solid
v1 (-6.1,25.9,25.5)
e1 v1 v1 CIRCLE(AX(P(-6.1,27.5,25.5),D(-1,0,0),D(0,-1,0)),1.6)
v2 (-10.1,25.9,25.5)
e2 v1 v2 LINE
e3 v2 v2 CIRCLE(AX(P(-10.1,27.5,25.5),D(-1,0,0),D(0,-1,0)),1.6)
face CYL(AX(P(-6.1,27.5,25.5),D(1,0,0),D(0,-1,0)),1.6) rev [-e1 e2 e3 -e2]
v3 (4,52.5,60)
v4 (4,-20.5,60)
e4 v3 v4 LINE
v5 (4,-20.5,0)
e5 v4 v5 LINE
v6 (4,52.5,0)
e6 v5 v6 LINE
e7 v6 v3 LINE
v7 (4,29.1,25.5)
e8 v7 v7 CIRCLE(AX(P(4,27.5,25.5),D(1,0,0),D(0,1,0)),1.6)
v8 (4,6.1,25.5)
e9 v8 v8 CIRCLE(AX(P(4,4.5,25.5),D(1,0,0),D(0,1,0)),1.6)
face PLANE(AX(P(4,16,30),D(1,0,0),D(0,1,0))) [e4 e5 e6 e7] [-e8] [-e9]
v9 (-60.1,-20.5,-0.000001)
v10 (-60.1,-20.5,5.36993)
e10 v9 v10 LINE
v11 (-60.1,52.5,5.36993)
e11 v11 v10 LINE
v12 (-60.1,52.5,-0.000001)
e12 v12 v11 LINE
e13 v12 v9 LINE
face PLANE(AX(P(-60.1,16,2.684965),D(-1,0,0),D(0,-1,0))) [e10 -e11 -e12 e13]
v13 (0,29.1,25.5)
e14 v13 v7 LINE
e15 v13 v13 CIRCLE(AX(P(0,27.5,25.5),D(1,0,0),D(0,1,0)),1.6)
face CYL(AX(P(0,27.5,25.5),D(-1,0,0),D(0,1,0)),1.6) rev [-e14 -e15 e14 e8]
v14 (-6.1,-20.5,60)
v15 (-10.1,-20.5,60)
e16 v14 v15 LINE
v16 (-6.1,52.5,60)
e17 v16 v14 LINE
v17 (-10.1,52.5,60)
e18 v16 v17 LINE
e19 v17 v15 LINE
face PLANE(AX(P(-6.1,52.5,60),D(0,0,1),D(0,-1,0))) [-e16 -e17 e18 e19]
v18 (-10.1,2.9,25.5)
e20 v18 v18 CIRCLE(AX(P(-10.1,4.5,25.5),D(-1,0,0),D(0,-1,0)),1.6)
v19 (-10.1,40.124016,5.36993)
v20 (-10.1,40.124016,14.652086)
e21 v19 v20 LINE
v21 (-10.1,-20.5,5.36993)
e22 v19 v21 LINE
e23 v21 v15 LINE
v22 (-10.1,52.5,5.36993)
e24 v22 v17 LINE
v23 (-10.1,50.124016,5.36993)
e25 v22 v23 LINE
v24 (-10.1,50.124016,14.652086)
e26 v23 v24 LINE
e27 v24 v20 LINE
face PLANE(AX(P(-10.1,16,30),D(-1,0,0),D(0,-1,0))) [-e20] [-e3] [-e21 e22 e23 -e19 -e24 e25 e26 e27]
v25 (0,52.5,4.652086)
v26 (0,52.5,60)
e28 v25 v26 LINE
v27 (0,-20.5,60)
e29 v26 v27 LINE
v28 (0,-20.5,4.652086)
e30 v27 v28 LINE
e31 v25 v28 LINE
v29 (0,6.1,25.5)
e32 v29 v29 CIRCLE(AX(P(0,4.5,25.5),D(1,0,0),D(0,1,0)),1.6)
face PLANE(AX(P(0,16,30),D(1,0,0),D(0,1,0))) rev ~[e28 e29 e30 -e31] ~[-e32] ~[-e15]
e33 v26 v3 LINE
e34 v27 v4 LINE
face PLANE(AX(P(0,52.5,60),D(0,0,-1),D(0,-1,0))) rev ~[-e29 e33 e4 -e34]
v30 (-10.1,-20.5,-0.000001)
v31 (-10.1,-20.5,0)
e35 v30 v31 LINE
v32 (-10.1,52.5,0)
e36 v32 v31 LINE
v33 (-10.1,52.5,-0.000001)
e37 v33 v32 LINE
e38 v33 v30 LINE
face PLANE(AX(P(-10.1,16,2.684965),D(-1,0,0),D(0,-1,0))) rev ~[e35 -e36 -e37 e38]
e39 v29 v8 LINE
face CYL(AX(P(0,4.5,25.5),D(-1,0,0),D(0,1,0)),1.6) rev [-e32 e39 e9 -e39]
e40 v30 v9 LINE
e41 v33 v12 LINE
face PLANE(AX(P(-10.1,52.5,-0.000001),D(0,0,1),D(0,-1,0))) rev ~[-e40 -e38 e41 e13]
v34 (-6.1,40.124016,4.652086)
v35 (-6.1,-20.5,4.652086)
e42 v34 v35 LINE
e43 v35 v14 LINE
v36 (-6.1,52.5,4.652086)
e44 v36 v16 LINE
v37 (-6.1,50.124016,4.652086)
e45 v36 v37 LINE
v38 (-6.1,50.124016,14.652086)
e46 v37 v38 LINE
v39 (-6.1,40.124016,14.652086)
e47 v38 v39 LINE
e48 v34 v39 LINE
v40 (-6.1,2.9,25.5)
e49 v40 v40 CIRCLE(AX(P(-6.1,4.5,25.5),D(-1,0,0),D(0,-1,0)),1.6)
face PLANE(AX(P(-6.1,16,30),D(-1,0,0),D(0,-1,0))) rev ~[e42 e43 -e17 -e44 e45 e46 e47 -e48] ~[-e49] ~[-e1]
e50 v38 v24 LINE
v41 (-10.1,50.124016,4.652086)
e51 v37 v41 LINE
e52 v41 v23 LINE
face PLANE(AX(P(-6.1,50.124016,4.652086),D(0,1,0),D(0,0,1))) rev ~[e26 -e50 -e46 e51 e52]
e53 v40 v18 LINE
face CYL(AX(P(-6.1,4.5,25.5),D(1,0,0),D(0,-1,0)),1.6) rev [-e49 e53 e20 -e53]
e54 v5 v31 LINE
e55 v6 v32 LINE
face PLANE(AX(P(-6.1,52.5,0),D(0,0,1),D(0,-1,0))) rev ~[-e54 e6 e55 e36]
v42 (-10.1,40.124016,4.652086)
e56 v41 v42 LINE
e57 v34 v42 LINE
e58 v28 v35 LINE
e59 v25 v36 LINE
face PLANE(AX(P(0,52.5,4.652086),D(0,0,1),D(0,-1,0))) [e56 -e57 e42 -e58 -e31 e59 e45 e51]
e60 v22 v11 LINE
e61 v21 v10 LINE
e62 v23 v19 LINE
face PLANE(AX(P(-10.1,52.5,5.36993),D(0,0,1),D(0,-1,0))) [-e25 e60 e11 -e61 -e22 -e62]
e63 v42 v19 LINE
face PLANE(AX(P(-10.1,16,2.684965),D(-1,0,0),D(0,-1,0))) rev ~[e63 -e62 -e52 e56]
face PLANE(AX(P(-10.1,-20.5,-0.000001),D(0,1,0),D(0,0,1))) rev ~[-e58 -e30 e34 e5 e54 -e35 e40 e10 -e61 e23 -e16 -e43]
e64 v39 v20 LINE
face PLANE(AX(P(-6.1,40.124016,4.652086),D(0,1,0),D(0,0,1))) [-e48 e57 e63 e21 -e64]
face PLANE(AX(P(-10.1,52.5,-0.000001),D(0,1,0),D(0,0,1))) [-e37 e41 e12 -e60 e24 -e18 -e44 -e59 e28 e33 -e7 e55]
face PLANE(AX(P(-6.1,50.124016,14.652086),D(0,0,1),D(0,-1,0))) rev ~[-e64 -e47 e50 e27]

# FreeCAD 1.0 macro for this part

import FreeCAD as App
import Part
import Sketcher


def add_polygon(sketch, points):
    """Adds a closed chain of lines whose ends are joined by coincident constraints."""
    first, n = sketch.GeometryCount, len(points)
    for a, b in zip(points, points[1:] + points[:1]):
        sketch.addGeometry(Part.LineSegment(App.Vector(*a, 0), App.Vector(*b, 0)), False)
    for i in range(n):
        sketch.addConstraint(Sketcher.Constraint("Coincident", first + i, 2, first + (i + 1) % n, 1))

doc = App.newDocument("Part")
params = doc.addObject("Spreadsheet::Sheet", "Params")
for row, (alias, value) in enumerate([
    ("sketch1_diameter", "3.2 mm"),
    ("sketch1_width", "73 mm"),
    ("sketch1_height", "60 mm"),
    ("pad1_length", "4 mm"),
    ("sketch2_width", "73 mm"),
    ("pad2_length", "6.1 mm"),
    ("sketch3_diameter", "3.2 mm"),
    ("sketch3_width", "73 mm"),
    ("sketch3_width2", "10 mm"),
    ("sketch3_height", "60 mm"),
    ("pad3_length", "4 mm"),
    ("sketch4_width", "73 mm"),
    ("pad4_length", "50 mm"),
], start=1):
    params.set(f"A{row}", alias)
    params.set(f"B{row}", "=" + value)
    params.setAlias(f"B{row}", alias)

body = doc.addObject("PartDesign::Body", "Body")

# Sketch on YZ plane
sketch1 = body.newObject("Sketcher::SketchObject", "Sketch")
sketch1.AttachmentSupport = (doc.getObject("YZ_Plane"), [""])
sketch1.MapMode = "FlatFace"
add_polygon(sketch1, [(-20.5, 0), (52.5, 0), (52.5, 60), (-20.5, 60)])  # lines 0-3
sketch1.addGeometry(Part.Circle(App.Vector(4.5, 25.5, 0), App.Vector(0, 0, 1), 1.6), False)  # 4
sketch1.addGeometry(Part.Circle(App.Vector(27.5, 25.5, 0), App.Vector(0, 0, 1), 1.6), False)  # 5
sketch1.addConstraint([
    Sketcher.Constraint("Horizontal", 0),
    Sketcher.Constraint("Vertical", 1),
    Sketcher.Constraint("Horizontal", 2),
    Sketcher.Constraint("Vertical", 3),
    Sketcher.Constraint("Equal", 4, 5),
    Sketcher.Constraint("PointOnObject", 0, 2, -1),
    Sketcher.Constraint("Horizontal", 4, 3, 5, 3),
    Sketcher.Constraint("Diameter", 4, 3.2),
    Sketcher.Constraint("DistanceX", 0, 1, 0, 2, 73.0),
    Sketcher.Constraint("DistanceY", 1, 1, 1, 2, 60.0),
    Sketcher.Constraint("DistanceX", 4, 3, 5, 3, 23.0),
    Sketcher.Constraint("DistanceX", 5, 3, 0, 2, 25.0),
    Sketcher.Constraint("DistanceX", -1, 1, 4, 3, 4.5),
    Sketcher.Constraint("DistanceY", -1, 1, 4, 3, 25.5),
])
sketch1.setExpression("Constraints[11]", "Params.sketch1_diameter")
sketch1.setExpression("Constraints[12]", "Params.sketch1_width")
sketch1.setExpression("Constraints[13]", "Params.sketch1_height")
pad1 = body.newObject("PartDesign::Pad", "Pad")
pad1.Profile = sketch1
pad1.setExpression("Length", "Params.pad1_length")

# Sketch on YZ plane
sketch2 = body.newObject("Sketcher::SketchObject", "Sketch001")
sketch2.AttachmentSupport = (doc.getObject("YZ_Plane"), [""])
sketch2.MapMode = "FlatFace"
add_polygon(sketch2, [(52.5, 4.7), (52.5, 0), (-20.5, 0), (-20.5, 4.7)])  # lines 0-3
sketch2.addConstraint([
    Sketcher.Constraint("Vertical", 0),
    Sketcher.Constraint("Horizontal", 1),
    Sketcher.Constraint("Vertical", 2),
    Sketcher.Constraint("Horizontal", 3),
    Sketcher.Constraint("PointOnObject", 0, 2, -1),
    Sketcher.Constraint("DistanceX", 1, 2, 1, 1, 73.0),
    Sketcher.Constraint("DistanceX", -1, 1, 0, 2, 52.5),
    Sketcher.Constraint("DistanceY", 0, 2, 0, 1, 4.652086),
])
sketch2.setExpression("Constraints[9]", "Params.sketch2_width")
pad2 = body.newObject("PartDesign::Pad", "Pad001")
pad2.Profile = sketch2
pad2.setExpression("Length", "Params.pad2_length")
pad2.Reversed = True

# Sketch on YZ plane
sketch3 = body.newObject("Sketcher::SketchObject", "Sketch002")
sketch3.AttachmentSupport = (doc.getObject("YZ_Plane"), [""])
sketch3.MapMode = "FlatFace"
sketch3.AttachmentOffset = App.Placement(App.Vector(0, 0, -6.1), App.Rotation())
add_polygon(sketch3, [(52.5, 60), (52.5, 0), (-20.5, 0), (-20.5, 60)])  # lines 0-3
add_polygon(sketch3, [(40.1, 4.7), (50.1, 4.7), (50.1, 14.7), (40.1, 14.7)])  # lines 4-7
sketch3.addGeometry(Part.Circle(App.Vector(27.5, 25.5, 0), App.Vector(0, 0, 1), 1.6), False)  # 8
sketch3.addGeometry(Part.Circle(App.Vector(4.5, 25.5, 0), App.Vector(0, 0, 1), 1.6), False)  # 9
sketch3.addConstraint([
    Sketcher.Constraint("Vertical", 0),
    Sketcher.Constraint("Horizontal", 1),
    Sketcher.Constraint("Vertical", 2),
    Sketcher.Constraint("Horizontal", 3),
    Sketcher.Constraint("Horizontal", 4),
    Sketcher.Constraint("Vertical", 5),
    Sketcher.Constraint("Horizontal", 6),
    Sketcher.Constraint("Vertical", 7),
    Sketcher.Constraint("Equal", 8, 9),
    Sketcher.Constraint("PointOnObject", 0, 2, -1),
    Sketcher.Constraint("Horizontal", 8, 3, 9, 3),
    Sketcher.Constraint("Equal", 6, 5),
    Sketcher.Constraint("Diameter", 8, 3.2),
    Sketcher.Constraint("DistanceX", 1, 2, 1, 1, 73.0),
    Sketcher.Constraint("DistanceX", 4, 1, 4, 2, 10.0),
    Sketcher.Constraint("DistanceY", 0, 2, 0, 1, 60.0),
    Sketcher.Constraint("DistanceX", 9, 3, 8, 3, 23.0),
    Sketcher.Constraint("DistanceX", 8, 3, 0, 2, 25.0),
    Sketcher.Constraint("DistanceX", -1, 1, 8, 3, 27.5),
    Sketcher.Constraint("DistanceY", -1, 1, 8, 3, 25.5),
    Sketcher.Constraint("DistanceX", -1, 1, 4, 2, 50.124016),
    Sketcher.Constraint("DistanceY", -1, 1, 4, 2, 4.652086),
])
sketch3.setExpression("Constraints[20]", "Params.sketch3_diameter")
sketch3.setExpression("Constraints[21]", "Params.sketch3_width")
sketch3.setExpression("Constraints[22]", "Params.sketch3_width2")
sketch3.setExpression("Constraints[23]", "Params.sketch3_height")
pad3 = body.newObject("PartDesign::Pad", "Pad002")
pad3.Profile = sketch3
pad3.setExpression("Length", "Params.pad3_length")
pad3.Reversed = True

# Sketch on YZ plane
sketch4 = body.newObject("Sketcher::SketchObject", "Sketch003")
sketch4.AttachmentSupport = (doc.getObject("YZ_Plane"), [""])
sketch4.MapMode = "FlatFace"
sketch4.AttachmentOffset = App.Placement(App.Vector(0, 0, -10.1), App.Rotation())
add_polygon(sketch4, [(52, 5), (52, 0), (-20, 0), (-20, 5)])  # lines 0-3
sketch4.addConstraint([
    Sketcher.Constraint("Vertical", 0),
    Sketcher.Constraint("Horizontal", 1),
    Sketcher.Constraint("Vertical", 2),
    Sketcher.Constraint("Horizontal", 3),
    Sketcher.Constraint("PointOnObject", 0, 2, -1),
    Sketcher.Constraint("DistanceX", 1, 2, 1, 1, 73.0),
    Sketcher.Constraint("DistanceX", -1, 1, 0, 2, 52.5),
    Sketcher.Constraint("DistanceY", 0, 2, 0, 1, 5.369931),
])
sketch4.setExpression("Constraints[9]", "Params.sketch4_width")
pad4 = body.newObject("PartDesign::Pad", "Pad003")
pad4.Profile = sketch4
pad4.setExpression("Length", "Params.pad4_length")
pad4.Reversed = True

doc.recompute()
